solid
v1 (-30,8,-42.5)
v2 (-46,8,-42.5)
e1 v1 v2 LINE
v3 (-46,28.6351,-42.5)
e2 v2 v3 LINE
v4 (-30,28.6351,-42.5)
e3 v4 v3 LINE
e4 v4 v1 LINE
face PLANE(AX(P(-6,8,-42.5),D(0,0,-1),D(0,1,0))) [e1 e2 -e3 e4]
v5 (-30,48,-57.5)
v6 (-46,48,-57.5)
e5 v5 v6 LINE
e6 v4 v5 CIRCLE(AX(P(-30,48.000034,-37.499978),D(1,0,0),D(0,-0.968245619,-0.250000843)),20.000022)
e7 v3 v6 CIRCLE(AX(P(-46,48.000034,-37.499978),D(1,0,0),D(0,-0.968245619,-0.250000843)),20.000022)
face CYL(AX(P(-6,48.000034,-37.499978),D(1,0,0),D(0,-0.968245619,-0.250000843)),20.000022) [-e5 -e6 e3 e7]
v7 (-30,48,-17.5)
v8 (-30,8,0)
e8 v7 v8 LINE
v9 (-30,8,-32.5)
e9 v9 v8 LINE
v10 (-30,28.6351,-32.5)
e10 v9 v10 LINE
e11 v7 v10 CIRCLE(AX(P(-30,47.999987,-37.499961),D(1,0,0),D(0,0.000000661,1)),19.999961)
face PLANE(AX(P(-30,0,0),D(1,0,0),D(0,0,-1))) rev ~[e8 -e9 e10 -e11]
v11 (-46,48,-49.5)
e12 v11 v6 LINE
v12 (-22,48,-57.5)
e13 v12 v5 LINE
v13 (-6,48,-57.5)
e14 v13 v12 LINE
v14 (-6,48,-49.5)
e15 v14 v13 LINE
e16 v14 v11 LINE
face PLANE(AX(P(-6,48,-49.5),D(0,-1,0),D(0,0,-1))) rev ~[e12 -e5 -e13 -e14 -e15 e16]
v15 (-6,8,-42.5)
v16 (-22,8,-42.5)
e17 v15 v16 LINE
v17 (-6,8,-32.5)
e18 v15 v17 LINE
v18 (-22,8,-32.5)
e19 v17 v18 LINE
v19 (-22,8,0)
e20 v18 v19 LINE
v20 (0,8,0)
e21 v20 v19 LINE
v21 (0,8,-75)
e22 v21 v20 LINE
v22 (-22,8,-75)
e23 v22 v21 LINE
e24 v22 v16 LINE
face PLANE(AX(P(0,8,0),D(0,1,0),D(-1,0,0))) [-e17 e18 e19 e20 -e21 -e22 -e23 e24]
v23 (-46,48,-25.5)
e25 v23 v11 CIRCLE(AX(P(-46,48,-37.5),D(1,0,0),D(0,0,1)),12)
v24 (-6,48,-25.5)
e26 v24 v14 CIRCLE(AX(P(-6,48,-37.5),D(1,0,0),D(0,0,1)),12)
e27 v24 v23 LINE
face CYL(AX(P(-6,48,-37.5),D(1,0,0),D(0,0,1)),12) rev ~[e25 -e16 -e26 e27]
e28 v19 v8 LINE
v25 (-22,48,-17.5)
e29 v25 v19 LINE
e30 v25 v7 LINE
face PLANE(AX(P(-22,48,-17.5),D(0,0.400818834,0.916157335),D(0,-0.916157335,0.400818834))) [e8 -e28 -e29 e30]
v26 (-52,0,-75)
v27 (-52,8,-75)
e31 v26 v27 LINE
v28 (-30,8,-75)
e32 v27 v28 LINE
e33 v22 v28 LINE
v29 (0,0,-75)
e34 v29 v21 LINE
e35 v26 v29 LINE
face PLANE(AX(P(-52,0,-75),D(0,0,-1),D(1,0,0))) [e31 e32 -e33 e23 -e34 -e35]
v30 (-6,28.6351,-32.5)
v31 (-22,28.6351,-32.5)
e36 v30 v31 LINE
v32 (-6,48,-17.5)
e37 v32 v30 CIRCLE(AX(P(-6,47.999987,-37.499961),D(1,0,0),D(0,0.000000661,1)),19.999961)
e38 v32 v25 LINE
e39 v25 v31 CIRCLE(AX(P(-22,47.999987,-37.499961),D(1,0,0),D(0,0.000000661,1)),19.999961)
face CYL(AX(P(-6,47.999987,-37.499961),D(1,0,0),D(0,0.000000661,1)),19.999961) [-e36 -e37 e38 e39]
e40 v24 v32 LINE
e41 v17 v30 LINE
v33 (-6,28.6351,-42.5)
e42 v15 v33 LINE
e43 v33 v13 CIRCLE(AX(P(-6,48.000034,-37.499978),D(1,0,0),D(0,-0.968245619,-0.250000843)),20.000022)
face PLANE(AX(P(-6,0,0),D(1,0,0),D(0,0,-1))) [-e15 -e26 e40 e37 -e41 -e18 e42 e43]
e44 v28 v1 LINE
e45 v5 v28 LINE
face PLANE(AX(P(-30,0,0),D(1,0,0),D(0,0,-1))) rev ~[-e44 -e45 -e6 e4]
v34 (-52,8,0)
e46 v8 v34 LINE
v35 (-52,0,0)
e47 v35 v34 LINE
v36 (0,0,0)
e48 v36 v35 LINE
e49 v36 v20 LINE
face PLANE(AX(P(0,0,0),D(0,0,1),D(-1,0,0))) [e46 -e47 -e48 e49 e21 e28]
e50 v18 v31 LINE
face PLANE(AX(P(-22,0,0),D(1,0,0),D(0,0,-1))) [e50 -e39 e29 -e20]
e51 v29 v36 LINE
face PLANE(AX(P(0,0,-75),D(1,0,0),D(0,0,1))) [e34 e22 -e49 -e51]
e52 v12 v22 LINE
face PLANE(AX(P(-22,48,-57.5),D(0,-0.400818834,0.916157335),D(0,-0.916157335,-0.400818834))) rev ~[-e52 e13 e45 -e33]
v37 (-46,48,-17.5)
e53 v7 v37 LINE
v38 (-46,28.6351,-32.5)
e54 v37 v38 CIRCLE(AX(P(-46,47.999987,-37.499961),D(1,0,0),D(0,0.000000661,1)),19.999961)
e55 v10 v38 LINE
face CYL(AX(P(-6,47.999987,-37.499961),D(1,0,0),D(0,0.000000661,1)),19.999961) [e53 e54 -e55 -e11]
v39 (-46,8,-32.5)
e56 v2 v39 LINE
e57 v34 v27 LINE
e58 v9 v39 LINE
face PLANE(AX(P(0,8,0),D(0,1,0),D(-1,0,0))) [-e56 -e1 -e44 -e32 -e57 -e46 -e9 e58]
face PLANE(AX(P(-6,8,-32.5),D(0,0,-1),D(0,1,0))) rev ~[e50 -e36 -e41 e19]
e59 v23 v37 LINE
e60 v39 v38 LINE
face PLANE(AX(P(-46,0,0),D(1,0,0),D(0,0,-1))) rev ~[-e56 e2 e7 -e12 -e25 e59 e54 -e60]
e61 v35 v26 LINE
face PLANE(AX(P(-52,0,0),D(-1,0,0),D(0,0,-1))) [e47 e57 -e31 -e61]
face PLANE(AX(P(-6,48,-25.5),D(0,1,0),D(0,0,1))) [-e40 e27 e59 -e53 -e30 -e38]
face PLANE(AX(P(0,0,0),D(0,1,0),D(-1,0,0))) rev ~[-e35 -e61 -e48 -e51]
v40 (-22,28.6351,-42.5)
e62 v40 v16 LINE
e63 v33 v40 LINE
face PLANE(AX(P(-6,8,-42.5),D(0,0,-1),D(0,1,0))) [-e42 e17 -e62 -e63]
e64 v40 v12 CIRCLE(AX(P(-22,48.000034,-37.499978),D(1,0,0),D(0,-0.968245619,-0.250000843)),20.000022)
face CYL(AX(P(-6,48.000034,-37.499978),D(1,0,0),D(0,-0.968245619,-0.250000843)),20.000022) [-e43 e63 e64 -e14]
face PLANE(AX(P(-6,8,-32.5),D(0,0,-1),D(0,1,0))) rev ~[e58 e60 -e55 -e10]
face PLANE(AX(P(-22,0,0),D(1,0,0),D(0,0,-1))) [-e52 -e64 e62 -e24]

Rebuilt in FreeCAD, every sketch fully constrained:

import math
import FreeCAD as App
import Part
import Sketcher

V = App.Vector


def add_polygon(sketch, points):
    """Adds a closed chain of lines whose ends are joined by coincident constraints."""
    first, n = sketch.GeometryCount, len(points)
    for a, b in zip(points, points[1:] + points[:1]):
        sketch.addGeometry(Part.LineSegment(App.Vector(*a, 0), App.Vector(*b, 0)), False)
    for i in range(n):
        sketch.addConstraint(Sketcher.Constraint("Coincident", first + i, 2, first + (i + 1) % n, 1))

doc = App.newDocument("Part")
params = doc.addObject("Spreadsheet::Sheet", "Params")
for row, (alias, value) in enumerate([
    ("sketch1_width", "52 mm"),
    ("sketch1_height", "75 mm"),
    ("pad1_length", "8 mm"),
    ("sketch2_radius", "20 mm"),
    ("sketch2_radius2", "12 mm"),
    ("sketch2_height", "10 mm"),
    ("pad2_length", "40 mm"),
    ("sketch3_radius", "20 mm"),
    ("sketch3_height", "32.5 mm"),
    ("pad3_length", "8 mm"),
], start=1):
    params.set(f"A{row}", alias)
    params.set(f"B{row}", "=" + value)
    params.setAlias(f"B{row}", alias)

body = doc.addObject("PartDesign::Body", "Body")

sketch1 = doc.addObject("Sketcher::SketchObject", "Sketch")
body.addObject(sketch1)
sketch1.AttachmentSupport = (doc.XZ_Plane, [""])
sketch1.MapMode = "FlatFace"
add_polygon(sketch1, [(-52, 0), (0, 0), (0, -75), (-52, -75)])
sketch1.addConstraint([
    Sketcher.Constraint("Horizontal", 0),
    Sketcher.Constraint("Vertical", 1),
    Sketcher.Constraint("Horizontal", 2),
    Sketcher.Constraint("Vertical", 3),
    Sketcher.Constraint("Coincident", 0, 2, -1, 1),
    Sketcher.Constraint("DistanceX", 0, 1, 0, 2, 52.0),
    Sketcher.Constraint("DistanceY", 1, 2, 1, 1, 75.0),
])
sketch1.setExpression("Constraints[9]", "Params.sketch1_width")
sketch1.setExpression("Constraints[10]", "Params.sketch1_height")
pad1 = doc.addObject("PartDesign::Pad", "Pad")
body.addObject(pad1)
pad1.Profile = sketch1
pad1.setExpression("Length", "Params.pad1_length")
pad1.Reversed = True

sketch2 = doc.addObject("Sketcher::SketchObject", "Sketch001")
body.addObject(sketch2)
sketch2.AttachmentSupport = (doc.YZ_Plane, [""])
sketch2.MapMode = "FlatFace"
sketch2.AttachmentOffset = App.Placement(V(0, 0, -6), App.Rotation())
sketch2.addGeometry([
    Part.LineSegment(V(8, -32, 0), V(8, -42, 0)),
    Part.LineSegment(V(8, -42, 0), V(29, -42, 0)),
    Part.ArcOfCircle(Part.Circle(V(48, -38, 0), V(0, 0, 1), 20), math.radians(-166), math.radians(-90)),
    Part.LineSegment(V(48, -58, 0), V(48, -50, 0)),
    Part.ArcOfCircle(Part.Circle(V(48, -38, 0), V(0, 0, 1), 12), math.radians(90), math.radians(270)),
    Part.LineSegment(V(48, -26, 0), V(48, -18, 0)),
    Part.ArcOfCircle(Part.Circle(V(48, -38, 0), V(0, 0, 1), 20), math.radians(90), math.radians(166)),
    Part.LineSegment(V(29, -32, 0), V(8, -32, 0)),
], False)
sketch2.addConstraint([
    Sketcher.Constraint("Coincident", 0, 2, 1, 1),
    Sketcher.Constraint("Coincident", 1, 2, 2, 1),
    Sketcher.Constraint("Coincident", 2, 2, 3, 1),
    Sketcher.Constraint("Coincident", 3, 2, 4, 2),
    Sketcher.Constraint("Coincident", 4, 1, 5, 1),
    Sketcher.Constraint("Coincident", 5, 2, 6, 1),
    Sketcher.Constraint("Coincident", 6, 2, 7, 1),
    Sketcher.Constraint("Coincident", 7, 2, 0, 1),
    Sketcher.Constraint("Vertical", 0),
    Sketcher.Constraint("Horizontal", 1),
    Sketcher.Constraint("Vertical", 3),
    Sketcher.Constraint("Vertical", 5),
    Sketcher.Constraint("Horizontal", 7),
    Sketcher.Constraint("Coincident", 4, 3, 2, 3),
    Sketcher.Constraint("Coincident", 6, 3, 2, 3),
    Sketcher.Constraint("Equal", 2, 6),
    Sketcher.Constraint("Vertical", 6, 3, 2, 2),
    Sketcher.Constraint("Vertical", 3, 2, 4, 1),
    Sketcher.Constraint("Vertical", 1, 2, 6, 2),
    Sketcher.Constraint("Radius", 2, 20.0),
    Sketcher.Constraint("Radius", 4, 12.0),
    Sketcher.Constraint("DistanceY", 0, 2, 0, 1, 10.0),
    Sketcher.Constraint("DistanceX", 0, 2, 2, 3, 40.0),
    Sketcher.Constraint("DistanceX", -1, 1, 2, 3, 48.0),
    Sketcher.Constraint("DistanceY", 2, 3, -1, 1, 37.5),
])
sketch2.setExpression("Constraints[19]", "Params.sketch2_radius")
sketch2.setExpression("Constraints[20]", "Params.sketch2_radius2")
sketch2.setExpression("Constraints[21]", "Params.sketch2_height")
pad2 = doc.addObject("PartDesign::Pad", "Pad001")
body.addObject(pad2)
pad2.Profile = sketch2
pad2.setExpression("Length", "Params.pad2_length")
pad2.Reversed = True

sketch3 = doc.addObject("Sketcher::SketchObject", "Sketch002")
body.addObject(sketch3)
sketch3.AttachmentSupport = (doc.YZ_Plane, [""])
sketch3.MapMode = "FlatFace"
sketch3.AttachmentOffset = App.Placement(V(0, 0, -22), App.Rotation())
sketch3.addGeometry([
    Part.LineSegment(V(8, 0, 0), V(8, -32, 0)),
    Part.LineSegment(V(8, -32, 0), V(29, -32, 0)),
    Part.ArcOfCircle(Part.Circle(V(48, -38, 0), V(0, 0, 1), 20), math.radians(90), math.radians(166)),
    Part.LineSegment(V(48, -18, 0), V(8, 0, 0)),
    Part.LineSegment(V(29, -42, 0), V(8, -42, 0)),
    Part.LineSegment(V(8, -42, 0), V(8, -75, 0)),
    Part.LineSegment(V(8, -75, 0), V(48, -58, 0)),
    Part.ArcOfCircle(Part.Circle(V(48, -38, 0), V(0, 0, 1), 20), math.radians(-166), math.radians(-90)),
], False)
sketch3.addConstraint([
    Sketcher.Constraint("Coincident", 0, 2, 1, 1),
    Sketcher.Constraint("Coincident", 1, 2, 2, 2),
    Sketcher.Constraint("Coincident", 2, 1, 3, 1),
    Sketcher.Constraint("Coincident", 3, 2, 0, 1),
    Sketcher.Constraint("Coincident", 4, 2, 5, 1),
    Sketcher.Constraint("Coincident", 5, 2, 6, 1),
    Sketcher.Constraint("Coincident", 6, 2, 7, 2),
    Sketcher.Constraint("Coincident", 7, 1, 4, 1),
    Sketcher.Constraint("Vertical", 0),
    Sketcher.Constraint("Horizontal", 1),
    Sketcher.Constraint("Horizontal", 4),
    Sketcher.Constraint("Vertical", 5),
    Sketcher.Constraint("Coincident", 7, 3, 2, 3),
    Sketcher.Constraint("Equal", 2, 7),
    Sketcher.Constraint("PointOnObject", 3, 2, -1),
    Sketcher.Constraint("Vertical", 7, 3, 2, 1),
    Sketcher.Constraint("Vertical", 3, 2, 4, 2),
    Sketcher.Constraint("Vertical", 2, 1, 6, 2),
    Sketcher.Constraint("Vertical", 1, 2, 7, 1),
    Sketcher.Constraint("Equal", 0, 5),
    Sketcher.Constraint("Radius", 2, 20.0),
    Sketcher.Constraint("DistanceY", 0, 2, 0, 1, 32.5),
    Sketcher.Constraint("DistanceX", -1, 1, 2, 3, 48.0),
    Sketcher.Constraint("DistanceX", -1, 1, 0, 2, 8.0),
    Sketcher.Constraint("DistanceY", 5, 2, -1, 1, 75.0),
])
sketch3.setExpression("Constraints[20]", "Params.sketch3_radius")
sketch3.setExpression("Constraints[21]", "Params.sketch3_height")
pad3 = doc.addObject("PartDesign::Pad", "Pad002")
body.addObject(pad3)
pad3.Profile = sketch3
pad3.setExpression("Length", "Params.pad3_length")
pad3.Reversed = True

doc.recompute()
